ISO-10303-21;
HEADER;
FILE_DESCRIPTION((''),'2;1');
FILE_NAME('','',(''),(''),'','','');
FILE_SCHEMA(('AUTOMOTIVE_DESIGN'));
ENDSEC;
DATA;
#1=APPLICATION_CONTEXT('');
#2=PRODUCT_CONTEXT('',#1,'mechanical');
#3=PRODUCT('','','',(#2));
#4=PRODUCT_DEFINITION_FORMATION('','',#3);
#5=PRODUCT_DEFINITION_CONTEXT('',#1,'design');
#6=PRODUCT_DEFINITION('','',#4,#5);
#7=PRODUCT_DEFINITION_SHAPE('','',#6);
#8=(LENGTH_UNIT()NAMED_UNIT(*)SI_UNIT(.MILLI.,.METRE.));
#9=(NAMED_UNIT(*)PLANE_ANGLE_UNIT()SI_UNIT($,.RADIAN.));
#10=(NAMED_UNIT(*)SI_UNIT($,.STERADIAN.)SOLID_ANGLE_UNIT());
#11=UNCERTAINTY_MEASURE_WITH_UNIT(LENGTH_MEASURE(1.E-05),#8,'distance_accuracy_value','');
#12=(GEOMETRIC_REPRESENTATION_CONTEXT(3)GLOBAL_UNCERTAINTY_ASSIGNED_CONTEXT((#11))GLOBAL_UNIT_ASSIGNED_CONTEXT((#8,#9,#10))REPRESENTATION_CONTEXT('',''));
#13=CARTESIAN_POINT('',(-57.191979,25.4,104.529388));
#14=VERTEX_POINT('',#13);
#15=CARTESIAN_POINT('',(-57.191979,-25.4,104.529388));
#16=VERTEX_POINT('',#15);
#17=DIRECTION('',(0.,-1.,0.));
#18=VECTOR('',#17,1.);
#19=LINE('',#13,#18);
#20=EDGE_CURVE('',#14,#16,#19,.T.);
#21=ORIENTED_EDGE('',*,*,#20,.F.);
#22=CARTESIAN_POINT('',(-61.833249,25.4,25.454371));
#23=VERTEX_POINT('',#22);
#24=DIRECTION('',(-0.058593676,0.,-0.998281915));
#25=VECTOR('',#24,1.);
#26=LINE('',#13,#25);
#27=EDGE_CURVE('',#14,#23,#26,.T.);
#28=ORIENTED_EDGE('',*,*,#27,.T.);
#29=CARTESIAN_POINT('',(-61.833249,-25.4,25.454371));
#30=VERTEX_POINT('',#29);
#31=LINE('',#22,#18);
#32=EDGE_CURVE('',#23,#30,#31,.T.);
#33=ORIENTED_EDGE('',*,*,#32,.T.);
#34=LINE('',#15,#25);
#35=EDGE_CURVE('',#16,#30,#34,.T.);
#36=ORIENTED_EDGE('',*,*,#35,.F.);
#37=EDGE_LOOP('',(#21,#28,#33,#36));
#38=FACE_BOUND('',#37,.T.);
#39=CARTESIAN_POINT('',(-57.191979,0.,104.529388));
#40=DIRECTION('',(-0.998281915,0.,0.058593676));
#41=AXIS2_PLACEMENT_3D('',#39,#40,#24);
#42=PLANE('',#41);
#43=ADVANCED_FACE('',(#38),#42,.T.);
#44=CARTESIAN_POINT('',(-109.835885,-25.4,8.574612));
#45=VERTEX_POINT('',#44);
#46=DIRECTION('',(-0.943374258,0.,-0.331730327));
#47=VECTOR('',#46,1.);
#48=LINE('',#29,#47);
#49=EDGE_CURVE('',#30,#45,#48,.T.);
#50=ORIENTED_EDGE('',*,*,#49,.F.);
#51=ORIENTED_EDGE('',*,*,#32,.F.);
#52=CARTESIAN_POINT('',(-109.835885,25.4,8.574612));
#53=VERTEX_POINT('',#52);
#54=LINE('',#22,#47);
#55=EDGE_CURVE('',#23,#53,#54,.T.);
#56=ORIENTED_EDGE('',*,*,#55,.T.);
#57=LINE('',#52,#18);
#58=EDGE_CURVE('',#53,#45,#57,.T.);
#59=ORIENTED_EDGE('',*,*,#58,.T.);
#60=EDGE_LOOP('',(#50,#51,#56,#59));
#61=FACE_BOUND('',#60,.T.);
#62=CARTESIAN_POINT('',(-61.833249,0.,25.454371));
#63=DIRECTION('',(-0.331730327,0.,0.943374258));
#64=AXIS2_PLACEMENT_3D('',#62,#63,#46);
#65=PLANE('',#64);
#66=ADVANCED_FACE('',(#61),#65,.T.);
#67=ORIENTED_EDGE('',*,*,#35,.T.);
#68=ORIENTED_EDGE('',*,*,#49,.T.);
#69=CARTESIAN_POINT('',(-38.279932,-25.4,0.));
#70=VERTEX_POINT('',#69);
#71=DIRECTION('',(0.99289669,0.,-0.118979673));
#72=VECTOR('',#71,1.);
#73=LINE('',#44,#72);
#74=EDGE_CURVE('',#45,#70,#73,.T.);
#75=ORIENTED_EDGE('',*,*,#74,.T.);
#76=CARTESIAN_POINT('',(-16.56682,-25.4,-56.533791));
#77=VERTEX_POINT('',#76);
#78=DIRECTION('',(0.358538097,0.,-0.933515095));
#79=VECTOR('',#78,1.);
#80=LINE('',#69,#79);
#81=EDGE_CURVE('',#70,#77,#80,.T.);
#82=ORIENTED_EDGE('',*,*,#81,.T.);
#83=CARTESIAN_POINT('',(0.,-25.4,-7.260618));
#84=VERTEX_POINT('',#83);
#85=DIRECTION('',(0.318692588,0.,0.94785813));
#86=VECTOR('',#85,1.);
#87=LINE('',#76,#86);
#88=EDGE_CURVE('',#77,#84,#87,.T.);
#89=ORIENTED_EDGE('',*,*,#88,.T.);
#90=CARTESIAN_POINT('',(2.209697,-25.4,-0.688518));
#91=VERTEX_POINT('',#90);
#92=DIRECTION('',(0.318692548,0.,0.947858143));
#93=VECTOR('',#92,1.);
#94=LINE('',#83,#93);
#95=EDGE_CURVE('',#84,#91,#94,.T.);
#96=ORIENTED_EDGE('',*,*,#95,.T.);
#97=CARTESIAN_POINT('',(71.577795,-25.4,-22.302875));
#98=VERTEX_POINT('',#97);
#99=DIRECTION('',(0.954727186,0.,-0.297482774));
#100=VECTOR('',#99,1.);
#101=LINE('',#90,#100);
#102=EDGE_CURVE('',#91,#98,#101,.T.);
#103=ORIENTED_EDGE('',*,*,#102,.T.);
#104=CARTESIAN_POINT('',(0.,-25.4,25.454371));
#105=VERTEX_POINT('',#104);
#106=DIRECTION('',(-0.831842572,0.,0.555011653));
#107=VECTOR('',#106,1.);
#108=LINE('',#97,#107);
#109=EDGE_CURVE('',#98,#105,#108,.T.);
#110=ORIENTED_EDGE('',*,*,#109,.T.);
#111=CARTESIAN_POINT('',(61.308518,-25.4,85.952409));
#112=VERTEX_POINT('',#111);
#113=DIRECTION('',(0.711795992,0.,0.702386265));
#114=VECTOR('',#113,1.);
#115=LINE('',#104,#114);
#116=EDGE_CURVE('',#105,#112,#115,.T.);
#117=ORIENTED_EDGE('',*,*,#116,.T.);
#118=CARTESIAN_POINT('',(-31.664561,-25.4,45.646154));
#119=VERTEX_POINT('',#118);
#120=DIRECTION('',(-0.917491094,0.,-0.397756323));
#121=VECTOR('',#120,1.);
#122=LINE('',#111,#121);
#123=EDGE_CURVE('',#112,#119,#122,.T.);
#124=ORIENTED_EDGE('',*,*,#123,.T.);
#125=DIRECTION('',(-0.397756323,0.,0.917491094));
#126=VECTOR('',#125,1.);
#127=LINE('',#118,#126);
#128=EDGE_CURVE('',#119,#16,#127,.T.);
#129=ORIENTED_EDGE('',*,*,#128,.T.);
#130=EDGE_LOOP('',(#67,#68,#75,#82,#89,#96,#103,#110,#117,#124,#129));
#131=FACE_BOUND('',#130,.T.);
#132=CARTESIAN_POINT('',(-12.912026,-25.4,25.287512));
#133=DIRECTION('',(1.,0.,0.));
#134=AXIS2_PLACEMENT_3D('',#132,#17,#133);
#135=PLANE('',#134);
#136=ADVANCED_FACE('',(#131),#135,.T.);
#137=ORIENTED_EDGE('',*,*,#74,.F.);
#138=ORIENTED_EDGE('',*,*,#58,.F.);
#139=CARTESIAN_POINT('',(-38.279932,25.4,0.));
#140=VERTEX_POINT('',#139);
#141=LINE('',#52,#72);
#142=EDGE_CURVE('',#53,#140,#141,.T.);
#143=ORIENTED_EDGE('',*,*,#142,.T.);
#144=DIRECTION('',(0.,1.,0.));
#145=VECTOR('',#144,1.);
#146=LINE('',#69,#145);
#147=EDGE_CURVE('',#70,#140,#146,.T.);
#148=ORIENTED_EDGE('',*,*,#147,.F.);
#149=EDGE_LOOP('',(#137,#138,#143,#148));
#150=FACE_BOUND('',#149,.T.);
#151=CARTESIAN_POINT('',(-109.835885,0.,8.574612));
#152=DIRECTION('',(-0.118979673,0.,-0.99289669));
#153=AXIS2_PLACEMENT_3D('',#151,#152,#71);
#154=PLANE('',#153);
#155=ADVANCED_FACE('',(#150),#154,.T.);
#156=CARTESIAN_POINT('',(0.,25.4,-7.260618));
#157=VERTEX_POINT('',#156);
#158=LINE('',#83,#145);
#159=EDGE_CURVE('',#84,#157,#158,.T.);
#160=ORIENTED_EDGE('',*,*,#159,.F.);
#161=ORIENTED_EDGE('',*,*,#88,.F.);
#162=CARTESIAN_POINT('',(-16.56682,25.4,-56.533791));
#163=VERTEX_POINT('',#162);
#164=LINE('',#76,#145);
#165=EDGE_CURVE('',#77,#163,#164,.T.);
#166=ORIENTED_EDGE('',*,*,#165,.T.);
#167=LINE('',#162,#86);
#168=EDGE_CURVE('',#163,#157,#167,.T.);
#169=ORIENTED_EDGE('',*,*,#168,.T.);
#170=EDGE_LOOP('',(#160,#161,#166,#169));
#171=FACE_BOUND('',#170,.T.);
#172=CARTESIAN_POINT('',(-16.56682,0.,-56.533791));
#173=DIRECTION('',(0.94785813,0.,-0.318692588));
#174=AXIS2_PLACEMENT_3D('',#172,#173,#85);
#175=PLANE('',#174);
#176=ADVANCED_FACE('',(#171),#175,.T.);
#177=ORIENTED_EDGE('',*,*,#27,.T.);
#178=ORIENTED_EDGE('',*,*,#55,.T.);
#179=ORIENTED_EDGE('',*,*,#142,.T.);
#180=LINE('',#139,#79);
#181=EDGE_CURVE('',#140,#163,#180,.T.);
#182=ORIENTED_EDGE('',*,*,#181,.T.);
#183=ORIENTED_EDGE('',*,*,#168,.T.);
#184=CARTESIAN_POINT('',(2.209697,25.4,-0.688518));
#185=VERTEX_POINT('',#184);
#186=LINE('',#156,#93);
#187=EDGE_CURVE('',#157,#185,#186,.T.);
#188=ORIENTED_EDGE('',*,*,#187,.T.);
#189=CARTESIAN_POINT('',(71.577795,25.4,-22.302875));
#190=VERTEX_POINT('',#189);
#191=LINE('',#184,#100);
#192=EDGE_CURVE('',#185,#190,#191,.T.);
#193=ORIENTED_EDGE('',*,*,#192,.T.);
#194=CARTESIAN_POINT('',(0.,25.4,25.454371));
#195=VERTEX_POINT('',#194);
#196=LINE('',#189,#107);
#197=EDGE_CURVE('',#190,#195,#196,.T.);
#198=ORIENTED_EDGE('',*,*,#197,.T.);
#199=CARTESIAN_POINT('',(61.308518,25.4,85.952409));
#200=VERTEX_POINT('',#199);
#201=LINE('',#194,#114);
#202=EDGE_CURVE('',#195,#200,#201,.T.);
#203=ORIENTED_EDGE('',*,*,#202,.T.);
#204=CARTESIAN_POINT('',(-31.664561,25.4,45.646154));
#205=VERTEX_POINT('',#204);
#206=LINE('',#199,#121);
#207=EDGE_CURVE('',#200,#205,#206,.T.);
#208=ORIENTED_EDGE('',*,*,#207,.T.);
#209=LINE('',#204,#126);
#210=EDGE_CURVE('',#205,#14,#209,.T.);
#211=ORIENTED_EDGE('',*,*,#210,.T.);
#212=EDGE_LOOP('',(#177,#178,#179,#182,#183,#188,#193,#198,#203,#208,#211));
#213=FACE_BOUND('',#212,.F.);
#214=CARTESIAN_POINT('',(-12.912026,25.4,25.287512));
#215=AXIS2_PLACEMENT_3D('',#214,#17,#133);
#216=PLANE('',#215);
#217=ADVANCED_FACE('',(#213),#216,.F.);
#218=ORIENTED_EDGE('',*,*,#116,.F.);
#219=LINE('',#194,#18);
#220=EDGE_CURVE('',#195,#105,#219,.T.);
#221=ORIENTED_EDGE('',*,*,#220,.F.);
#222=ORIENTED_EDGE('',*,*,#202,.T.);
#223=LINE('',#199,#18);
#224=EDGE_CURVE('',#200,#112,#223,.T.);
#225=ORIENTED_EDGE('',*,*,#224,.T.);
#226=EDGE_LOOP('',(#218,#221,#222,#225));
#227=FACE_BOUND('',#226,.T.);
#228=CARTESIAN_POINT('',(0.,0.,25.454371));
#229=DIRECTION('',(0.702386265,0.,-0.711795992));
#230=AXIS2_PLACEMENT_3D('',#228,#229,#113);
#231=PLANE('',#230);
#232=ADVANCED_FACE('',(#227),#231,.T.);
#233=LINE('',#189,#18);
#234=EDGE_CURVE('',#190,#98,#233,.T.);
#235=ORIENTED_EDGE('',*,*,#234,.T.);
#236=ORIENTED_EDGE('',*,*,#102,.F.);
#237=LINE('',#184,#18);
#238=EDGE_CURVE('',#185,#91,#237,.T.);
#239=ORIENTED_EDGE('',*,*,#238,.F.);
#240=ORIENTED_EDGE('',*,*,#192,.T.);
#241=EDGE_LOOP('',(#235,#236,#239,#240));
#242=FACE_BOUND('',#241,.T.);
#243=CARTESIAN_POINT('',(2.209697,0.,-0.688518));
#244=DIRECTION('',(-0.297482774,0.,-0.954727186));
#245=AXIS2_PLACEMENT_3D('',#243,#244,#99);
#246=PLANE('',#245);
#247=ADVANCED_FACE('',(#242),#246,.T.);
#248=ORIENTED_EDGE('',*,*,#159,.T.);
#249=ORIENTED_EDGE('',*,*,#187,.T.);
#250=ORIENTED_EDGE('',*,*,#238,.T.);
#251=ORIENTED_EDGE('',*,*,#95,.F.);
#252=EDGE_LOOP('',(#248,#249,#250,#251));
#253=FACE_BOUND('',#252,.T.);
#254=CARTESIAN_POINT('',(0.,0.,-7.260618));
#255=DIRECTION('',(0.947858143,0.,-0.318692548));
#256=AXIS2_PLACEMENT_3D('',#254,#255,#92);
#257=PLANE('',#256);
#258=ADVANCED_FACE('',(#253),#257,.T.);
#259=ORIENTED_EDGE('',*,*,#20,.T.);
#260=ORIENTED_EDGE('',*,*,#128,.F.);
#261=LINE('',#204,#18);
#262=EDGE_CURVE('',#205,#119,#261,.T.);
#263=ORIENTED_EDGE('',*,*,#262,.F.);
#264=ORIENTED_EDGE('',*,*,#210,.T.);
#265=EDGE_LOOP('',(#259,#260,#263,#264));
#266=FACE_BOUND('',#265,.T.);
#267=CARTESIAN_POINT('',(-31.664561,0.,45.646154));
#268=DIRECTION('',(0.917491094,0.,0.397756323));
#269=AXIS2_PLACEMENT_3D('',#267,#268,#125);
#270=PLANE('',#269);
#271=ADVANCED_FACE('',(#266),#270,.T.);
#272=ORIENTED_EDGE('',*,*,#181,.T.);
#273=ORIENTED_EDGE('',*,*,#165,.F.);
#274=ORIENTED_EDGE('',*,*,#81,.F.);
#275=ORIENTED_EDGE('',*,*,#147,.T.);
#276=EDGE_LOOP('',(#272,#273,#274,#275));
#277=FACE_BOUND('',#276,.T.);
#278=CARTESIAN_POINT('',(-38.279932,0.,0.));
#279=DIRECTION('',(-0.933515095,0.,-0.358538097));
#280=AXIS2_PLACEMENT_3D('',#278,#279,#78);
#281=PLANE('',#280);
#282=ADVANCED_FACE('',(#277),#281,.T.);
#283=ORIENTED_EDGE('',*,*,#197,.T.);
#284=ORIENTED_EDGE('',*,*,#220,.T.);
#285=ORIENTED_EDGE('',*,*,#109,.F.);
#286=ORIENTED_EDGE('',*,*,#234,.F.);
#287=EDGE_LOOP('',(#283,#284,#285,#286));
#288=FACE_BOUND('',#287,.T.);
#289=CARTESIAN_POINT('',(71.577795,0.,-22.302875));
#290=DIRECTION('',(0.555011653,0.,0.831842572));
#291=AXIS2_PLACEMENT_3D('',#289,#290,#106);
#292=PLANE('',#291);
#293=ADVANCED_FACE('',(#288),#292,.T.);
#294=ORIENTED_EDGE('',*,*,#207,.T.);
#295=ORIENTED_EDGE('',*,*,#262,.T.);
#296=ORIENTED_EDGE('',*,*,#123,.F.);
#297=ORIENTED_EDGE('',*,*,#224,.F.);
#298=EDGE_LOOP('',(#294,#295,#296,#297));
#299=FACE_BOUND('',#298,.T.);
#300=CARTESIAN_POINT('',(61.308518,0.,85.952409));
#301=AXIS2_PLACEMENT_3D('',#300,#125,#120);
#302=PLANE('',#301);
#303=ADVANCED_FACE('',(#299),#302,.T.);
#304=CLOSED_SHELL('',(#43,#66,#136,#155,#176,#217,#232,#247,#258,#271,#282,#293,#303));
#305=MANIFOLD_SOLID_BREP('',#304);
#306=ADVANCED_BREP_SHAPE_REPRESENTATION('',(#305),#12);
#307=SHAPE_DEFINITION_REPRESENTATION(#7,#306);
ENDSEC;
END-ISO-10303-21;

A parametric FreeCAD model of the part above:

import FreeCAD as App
import Part
import Sketcher


def add_polygon(sketch, points):
    """Adds a closed chain of lines whose ends are joined by coincident constraints."""
    first, n = sketch.GeometryCount, len(points)
    for a, b in zip(points, points[1:] + points[:1]):
        sketch.addGeometry(Part.LineSegment(App.Vector(*a, 0), App.Vector(*b, 0)), False)
    for i in range(n):
        sketch.addConstraint(Sketcher.Constraint("Coincident", first + i, 2, first + (i + 1) % n, 1))

doc = App.newDocument("Part")
params = doc.addObject("Spreadsheet::Sheet", "Params")
for row, (alias, value) in enumerate([
    ("pad1_length", "2 in"),
], start=1):
    params.set(f"A{row}", alias)
    params.set(f"B{row}", "=" + value)
    params.setAlias(f"B{row}", alias)

body = doc.addObject("PartDesign::Body", "Body")

# Sketch on XZ plane
sketch1 = body.newObject("Sketcher::SketchObject", "Sketch")
sketch1.AttachmentSupport = (doc.getObject("XZ_Plane"), [""])
sketch1.MapMode = "FlatFace"
add_polygon(sketch1, [(0, -7.260618), (2.209697, -0.688518), (71.577795, -22.302875), (0, 25.454371), (61.308518, 85.952409), (-31.664561, 45.646154), (-57.191979, 104.529388), (-61.833249, 25.454371), (-109.835885, 8.574612), (-38.279932, 0), (-16.56682, -56.533791)])  # lines 0-10
sketch1.addConstraint(Sketcher.Constraint("PointOnObject", 2, 2, -2))
sketch1.addConstraint(Sketcher.Constraint("PointOnObject", 8, 2, -1))
sketch1.addConstraint(Sketcher.Constraint("PointOnObject", 10, 2, -2))
sketch1.addConstraint(Sketcher.Constraint("Distance", 10, 51.9837))
sketch1.addConstraint(Sketcher.Constraint("DistanceY", 10, 2, 0, 2, 6.5721))
sketch1.addConstraint(Sketcher.Constraint("Distance", 3, 86.132148))
sketch1.addConstraint(Sketcher.Constraint("Distance", 4, 101.33404))
sketch1.addConstraint(Sketcher.Constraint("Distance", 6, 79.211108))
sketch1.addConstraint(Sketcher.Constraint("Distance", 7, 50.883979))
sketch1.addConstraint(Sketcher.Constraint("DistanceY", -1, 1, 2, 2, 25.454371))
sketch1.addConstraint(Sketcher.Constraint("DistanceY", -1, 1, 3, 2, 85.952409))
sketch1.addConstraint(Sketcher.Constraint("DistanceX", 4, 2, -1, 1, 31.664561))
sketch1.addConstraint(Sketcher.Constraint("DistanceX", 5, 2, -1, 1, 57.191979))
sketch1.addConstraint(Sketcher.Constraint("DistanceX", 6, 2, -1, 1, 61.833249))
sketch1.addConstraint(Sketcher.Constraint("DistanceY", -1, 1, 6, 2, 25.454371))
sketch1.addConstraint(Sketcher.Constraint("DistanceX", 9, 2, -1, 1, 16.56682))
sketch1.addConstraint(Sketcher.Constraint("DistanceY", 9, 2, -1, 1, 56.533791))
sketch1.addConstraint(Sketcher.Constraint("DistanceX", 0, 2, 3, 2, 59.098821))
sketch1.addConstraint(Sketcher.Constraint("DistanceY", 1, 2, 4, 2, 67.949029))
sketch1.addConstraint(Sketcher.Constraint("DistanceY", 7, 2, 6, 2, 16.879759))
sketch1.addConstraint(Sketcher.Constraint("DistanceX", 8, 2, 0, 2, 40.489629))
sketch1.addConstraint(Sketcher.Constraint("Distance", 1, 72.657508))
pad1 = body.newObject("PartDesign::Pad", "Pad")
pad1.Profile = sketch1
pad1.setExpression("Length", "Params.pad1_length")
pad1.Midplane = True

doc.recompute()
